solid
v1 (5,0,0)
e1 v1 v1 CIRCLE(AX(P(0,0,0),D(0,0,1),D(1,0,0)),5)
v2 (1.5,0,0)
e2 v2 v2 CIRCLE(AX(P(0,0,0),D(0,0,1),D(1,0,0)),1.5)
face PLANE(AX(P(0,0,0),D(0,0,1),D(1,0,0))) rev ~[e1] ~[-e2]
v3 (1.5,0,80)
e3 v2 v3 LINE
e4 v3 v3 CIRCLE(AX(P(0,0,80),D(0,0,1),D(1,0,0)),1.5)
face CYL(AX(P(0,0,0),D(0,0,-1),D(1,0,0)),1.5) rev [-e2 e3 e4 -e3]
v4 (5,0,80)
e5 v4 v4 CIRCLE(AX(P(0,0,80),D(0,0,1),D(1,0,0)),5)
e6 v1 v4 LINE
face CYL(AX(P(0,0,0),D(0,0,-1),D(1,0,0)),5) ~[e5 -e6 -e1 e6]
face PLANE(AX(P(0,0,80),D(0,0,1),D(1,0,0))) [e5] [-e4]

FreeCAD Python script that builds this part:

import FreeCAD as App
import Part
import Sketcher

V = App.Vector

doc = App.newDocument("Part")
params = doc.addObject("Spreadsheet::Sheet", "Params")
for row, (alias, value) in enumerate([
    ("sketch1_diameter", "10 mm"),
    ("sketch1_diameter2", "3 mm"),
    ("pad1_length", "80 mm"),
], start=1):
    params.set(f"A{row}", alias)
    params.set(f"B{row}", "=" + value)
    params.setAlias(f"B{row}", alias)

body = doc.addObject("PartDesign::Body", "Body")

# Sketch on XY plane
sketch1 = doc.addObject("Sketcher::SketchObject", "Sketch")
body.addObject(sketch1)
sketch1.AttachmentSupport = (doc.XY_Plane, [""])
sketch1.MapMode = "FlatFace"
sketch1.addGeometry([
    Part.Circle(V(0, 0, 0), V(0, 0, 1), 5),
    Part.Circle(V(0, 0, 0), V(0, 0, 1), 1.5),
], False)
sketch1.addConstraint([
    Sketcher.Constraint("Coincident", 0, 3, -1, 1),
    Sketcher.Constraint("Coincident", 1, 3, -1, 1),
    Sketcher.Constraint("Diameter", 0, 10.0),
    Sketcher.Constraint("Diameter", 1, 3.0),
])
sketch1.setExpression("Constraints[2]", "Params.sketch1_diameter")
sketch1.setExpression("Constraints[3]", "Params.sketch1_diameter2")
pad1 = doc.addObject("PartDesign::Pad", "Pad")
body.addObject(pad1)
pad1.Profile = sketch1
pad1.setExpression("Length", "Params.pad1_length")

doc.recompute()
